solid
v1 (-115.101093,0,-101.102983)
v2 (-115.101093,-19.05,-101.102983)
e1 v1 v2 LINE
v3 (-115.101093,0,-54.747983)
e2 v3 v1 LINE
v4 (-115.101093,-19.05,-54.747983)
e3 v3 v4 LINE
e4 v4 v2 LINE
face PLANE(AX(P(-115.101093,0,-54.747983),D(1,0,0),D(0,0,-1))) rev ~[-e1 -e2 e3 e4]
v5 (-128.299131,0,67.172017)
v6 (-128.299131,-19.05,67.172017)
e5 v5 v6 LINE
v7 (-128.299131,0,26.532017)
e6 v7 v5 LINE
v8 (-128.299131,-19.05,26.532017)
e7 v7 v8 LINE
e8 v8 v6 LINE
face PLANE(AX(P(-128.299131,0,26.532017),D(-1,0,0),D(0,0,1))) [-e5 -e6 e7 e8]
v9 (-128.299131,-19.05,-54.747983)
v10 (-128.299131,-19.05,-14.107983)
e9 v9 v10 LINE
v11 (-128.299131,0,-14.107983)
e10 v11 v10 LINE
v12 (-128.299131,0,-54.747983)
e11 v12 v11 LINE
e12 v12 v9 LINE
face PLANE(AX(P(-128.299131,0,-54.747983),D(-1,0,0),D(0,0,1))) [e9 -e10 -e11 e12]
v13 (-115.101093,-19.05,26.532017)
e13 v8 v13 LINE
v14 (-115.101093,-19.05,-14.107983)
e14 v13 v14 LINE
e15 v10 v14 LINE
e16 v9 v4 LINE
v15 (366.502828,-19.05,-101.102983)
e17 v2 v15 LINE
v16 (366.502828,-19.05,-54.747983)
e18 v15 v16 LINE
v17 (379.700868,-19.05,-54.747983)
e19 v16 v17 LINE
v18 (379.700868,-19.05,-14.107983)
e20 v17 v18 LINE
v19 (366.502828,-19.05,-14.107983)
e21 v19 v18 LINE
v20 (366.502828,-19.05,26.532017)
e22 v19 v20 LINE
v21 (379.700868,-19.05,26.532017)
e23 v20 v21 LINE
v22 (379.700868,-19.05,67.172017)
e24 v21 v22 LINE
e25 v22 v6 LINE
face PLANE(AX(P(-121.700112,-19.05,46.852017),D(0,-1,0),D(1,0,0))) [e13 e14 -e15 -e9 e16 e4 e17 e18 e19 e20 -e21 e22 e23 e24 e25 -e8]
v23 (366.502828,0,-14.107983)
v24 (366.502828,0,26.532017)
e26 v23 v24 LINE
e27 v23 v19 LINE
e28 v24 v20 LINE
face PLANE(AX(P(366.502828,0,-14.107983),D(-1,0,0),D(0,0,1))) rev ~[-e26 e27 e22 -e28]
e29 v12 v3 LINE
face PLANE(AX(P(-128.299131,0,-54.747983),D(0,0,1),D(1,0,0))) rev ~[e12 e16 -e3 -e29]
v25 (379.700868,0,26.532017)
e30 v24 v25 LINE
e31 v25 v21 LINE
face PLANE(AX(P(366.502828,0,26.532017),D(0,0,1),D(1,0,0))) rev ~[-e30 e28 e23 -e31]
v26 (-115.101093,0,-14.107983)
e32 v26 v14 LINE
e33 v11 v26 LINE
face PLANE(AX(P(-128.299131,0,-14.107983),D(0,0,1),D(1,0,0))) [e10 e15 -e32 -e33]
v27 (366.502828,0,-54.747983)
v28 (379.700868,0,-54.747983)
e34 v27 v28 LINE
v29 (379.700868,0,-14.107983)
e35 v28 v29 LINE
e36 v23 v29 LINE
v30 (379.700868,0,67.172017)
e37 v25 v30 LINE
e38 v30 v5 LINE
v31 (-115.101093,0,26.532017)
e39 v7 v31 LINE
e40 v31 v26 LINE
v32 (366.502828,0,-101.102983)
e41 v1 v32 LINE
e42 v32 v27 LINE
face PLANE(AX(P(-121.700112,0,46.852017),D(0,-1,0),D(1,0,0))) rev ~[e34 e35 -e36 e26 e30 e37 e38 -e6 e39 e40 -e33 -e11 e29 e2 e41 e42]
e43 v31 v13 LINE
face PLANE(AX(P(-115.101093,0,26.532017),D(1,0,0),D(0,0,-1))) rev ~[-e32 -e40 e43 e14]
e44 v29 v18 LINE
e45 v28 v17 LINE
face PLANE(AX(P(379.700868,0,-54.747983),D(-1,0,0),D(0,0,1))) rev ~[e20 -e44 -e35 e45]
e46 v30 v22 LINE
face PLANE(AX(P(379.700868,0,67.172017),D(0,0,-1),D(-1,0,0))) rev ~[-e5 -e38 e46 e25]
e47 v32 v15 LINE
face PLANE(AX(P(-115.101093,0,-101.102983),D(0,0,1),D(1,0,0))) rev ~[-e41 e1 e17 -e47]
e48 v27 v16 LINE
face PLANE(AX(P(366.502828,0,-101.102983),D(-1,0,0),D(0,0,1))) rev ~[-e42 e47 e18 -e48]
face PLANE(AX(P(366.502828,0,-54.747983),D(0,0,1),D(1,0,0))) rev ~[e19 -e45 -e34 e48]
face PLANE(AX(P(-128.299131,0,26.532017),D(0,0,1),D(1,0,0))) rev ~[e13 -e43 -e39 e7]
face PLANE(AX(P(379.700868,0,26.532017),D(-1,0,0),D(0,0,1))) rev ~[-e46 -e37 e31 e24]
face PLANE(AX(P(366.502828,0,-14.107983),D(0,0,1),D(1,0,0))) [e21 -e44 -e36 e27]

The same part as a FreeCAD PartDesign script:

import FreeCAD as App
import Part
import Sketcher
from FreeCAD import Vector
Q = App.Units.Quantity


def add_polygon(sketch, points):
    """Adds a closed chain of lines whose ends are joined by coincident constraints."""
    first, n = sketch.GeometryCount, len(points)
    for a, b in zip(points, points[1:] + points[:1]):
        sketch.addGeometry(Part.LineSegment(App.Vector(*a, 0), App.Vector(*b, 0)), False)
    for i in range(n):
        sketch.addConstraint(Sketcher.Constraint("Coincident", first + i, 2, first + (i + 1) % n, 1))

doc = App.newDocument("Part")
body = doc.addObject("PartDesign::Body", "Body")

# Sketch on XZ plane
sketch1 = body.newObject("Sketcher::SketchObject", "Sketch")
sketch1.AttachmentSupport = (doc.getObject("XZ_Plane"), [""])
sketch1.MapMode = "FlatFace"
add_polygon(sketch1, [(-128, 67), (-128, 27), (-115, 27), (-115, -14), (-128, -14), (-128, -55), (-115, -55), (-115, -101), (367, -101), (367, -55), (380, -55), (380, -14), (367, -14), (367, 27), (380, 27), (380, 67)])  # lines 0-15
sketch1.addConstraint([
    Sketcher.Constraint("Vertical", 0),
    Sketcher.Constraint("Horizontal", 1),
    Sketcher.Constraint("Vertical", 2),
    Sketcher.Constraint("Horizontal", 3),
    Sketcher.Constraint("Vertical", 4),
    Sketcher.Constraint("Horizontal", 5),
    Sketcher.Constraint("Vertical", 6),
    Sketcher.Constraint("Horizontal", 7),
    Sketcher.Constraint("Vertical", 8),
    Sketcher.Constraint("Horizontal", 9),
    Sketcher.Constraint("Vertical", 10),
    Sketcher.Constraint("Horizontal", 11),
    Sketcher.Constraint("Vertical", 12),
    Sketcher.Constraint("Horizontal", 13),
    Sketcher.Constraint("Vertical", 14),
    Sketcher.Constraint("Horizontal", 15),
    Sketcher.Constraint("Horizontal", 5, 2, 8, 2),
    Sketcher.Constraint("Horizontal", 3, 2, 10, 2),
    Sketcher.Constraint("Horizontal", 1, 2, 12, 2),
    Sketcher.Constraint("Vertical", 0, 2, 3, 2),
    Sketcher.Constraint("Vertical", 2, 2, 5, 2),
    Sketcher.Constraint("Vertical", 8, 2, 11, 2),
    Sketcher.Constraint("Vertical", 10, 2, 13, 2),
    Sketcher.Constraint("Equal", 5, 9),
    Sketcher.Constraint("Equal", 0, 2),
    Sketcher.Constraint("Equal", 2, 4),
    Sketcher.Constraint("DistanceX", 15, 2, 15, 1, Q("20 in")),
    Sketcher.Constraint("DistanceY", 0, 2, 0, 1, Q("1.6 in")),
    Sketcher.Constraint("DistanceY", 6, 2, 6, 1, Q("1.825 in")),
    Sketcher.Constraint("DistanceX", 1, 1, 1, 2, Q("13.198038 mm")),
    Sketcher.Constraint("DistanceX", 0, 2, -1, 1, Q("128.299131 mm")),
    Sketcher.Constraint("DistanceY", -1, 1, 0, 2, Q("26.532017 mm")),
])
pad1 = body.newObject("PartDesign::Pad", "Pad")
pad1.Profile = sketch1
pad1.Length = Q("0.75 in")

doc.recompute()
